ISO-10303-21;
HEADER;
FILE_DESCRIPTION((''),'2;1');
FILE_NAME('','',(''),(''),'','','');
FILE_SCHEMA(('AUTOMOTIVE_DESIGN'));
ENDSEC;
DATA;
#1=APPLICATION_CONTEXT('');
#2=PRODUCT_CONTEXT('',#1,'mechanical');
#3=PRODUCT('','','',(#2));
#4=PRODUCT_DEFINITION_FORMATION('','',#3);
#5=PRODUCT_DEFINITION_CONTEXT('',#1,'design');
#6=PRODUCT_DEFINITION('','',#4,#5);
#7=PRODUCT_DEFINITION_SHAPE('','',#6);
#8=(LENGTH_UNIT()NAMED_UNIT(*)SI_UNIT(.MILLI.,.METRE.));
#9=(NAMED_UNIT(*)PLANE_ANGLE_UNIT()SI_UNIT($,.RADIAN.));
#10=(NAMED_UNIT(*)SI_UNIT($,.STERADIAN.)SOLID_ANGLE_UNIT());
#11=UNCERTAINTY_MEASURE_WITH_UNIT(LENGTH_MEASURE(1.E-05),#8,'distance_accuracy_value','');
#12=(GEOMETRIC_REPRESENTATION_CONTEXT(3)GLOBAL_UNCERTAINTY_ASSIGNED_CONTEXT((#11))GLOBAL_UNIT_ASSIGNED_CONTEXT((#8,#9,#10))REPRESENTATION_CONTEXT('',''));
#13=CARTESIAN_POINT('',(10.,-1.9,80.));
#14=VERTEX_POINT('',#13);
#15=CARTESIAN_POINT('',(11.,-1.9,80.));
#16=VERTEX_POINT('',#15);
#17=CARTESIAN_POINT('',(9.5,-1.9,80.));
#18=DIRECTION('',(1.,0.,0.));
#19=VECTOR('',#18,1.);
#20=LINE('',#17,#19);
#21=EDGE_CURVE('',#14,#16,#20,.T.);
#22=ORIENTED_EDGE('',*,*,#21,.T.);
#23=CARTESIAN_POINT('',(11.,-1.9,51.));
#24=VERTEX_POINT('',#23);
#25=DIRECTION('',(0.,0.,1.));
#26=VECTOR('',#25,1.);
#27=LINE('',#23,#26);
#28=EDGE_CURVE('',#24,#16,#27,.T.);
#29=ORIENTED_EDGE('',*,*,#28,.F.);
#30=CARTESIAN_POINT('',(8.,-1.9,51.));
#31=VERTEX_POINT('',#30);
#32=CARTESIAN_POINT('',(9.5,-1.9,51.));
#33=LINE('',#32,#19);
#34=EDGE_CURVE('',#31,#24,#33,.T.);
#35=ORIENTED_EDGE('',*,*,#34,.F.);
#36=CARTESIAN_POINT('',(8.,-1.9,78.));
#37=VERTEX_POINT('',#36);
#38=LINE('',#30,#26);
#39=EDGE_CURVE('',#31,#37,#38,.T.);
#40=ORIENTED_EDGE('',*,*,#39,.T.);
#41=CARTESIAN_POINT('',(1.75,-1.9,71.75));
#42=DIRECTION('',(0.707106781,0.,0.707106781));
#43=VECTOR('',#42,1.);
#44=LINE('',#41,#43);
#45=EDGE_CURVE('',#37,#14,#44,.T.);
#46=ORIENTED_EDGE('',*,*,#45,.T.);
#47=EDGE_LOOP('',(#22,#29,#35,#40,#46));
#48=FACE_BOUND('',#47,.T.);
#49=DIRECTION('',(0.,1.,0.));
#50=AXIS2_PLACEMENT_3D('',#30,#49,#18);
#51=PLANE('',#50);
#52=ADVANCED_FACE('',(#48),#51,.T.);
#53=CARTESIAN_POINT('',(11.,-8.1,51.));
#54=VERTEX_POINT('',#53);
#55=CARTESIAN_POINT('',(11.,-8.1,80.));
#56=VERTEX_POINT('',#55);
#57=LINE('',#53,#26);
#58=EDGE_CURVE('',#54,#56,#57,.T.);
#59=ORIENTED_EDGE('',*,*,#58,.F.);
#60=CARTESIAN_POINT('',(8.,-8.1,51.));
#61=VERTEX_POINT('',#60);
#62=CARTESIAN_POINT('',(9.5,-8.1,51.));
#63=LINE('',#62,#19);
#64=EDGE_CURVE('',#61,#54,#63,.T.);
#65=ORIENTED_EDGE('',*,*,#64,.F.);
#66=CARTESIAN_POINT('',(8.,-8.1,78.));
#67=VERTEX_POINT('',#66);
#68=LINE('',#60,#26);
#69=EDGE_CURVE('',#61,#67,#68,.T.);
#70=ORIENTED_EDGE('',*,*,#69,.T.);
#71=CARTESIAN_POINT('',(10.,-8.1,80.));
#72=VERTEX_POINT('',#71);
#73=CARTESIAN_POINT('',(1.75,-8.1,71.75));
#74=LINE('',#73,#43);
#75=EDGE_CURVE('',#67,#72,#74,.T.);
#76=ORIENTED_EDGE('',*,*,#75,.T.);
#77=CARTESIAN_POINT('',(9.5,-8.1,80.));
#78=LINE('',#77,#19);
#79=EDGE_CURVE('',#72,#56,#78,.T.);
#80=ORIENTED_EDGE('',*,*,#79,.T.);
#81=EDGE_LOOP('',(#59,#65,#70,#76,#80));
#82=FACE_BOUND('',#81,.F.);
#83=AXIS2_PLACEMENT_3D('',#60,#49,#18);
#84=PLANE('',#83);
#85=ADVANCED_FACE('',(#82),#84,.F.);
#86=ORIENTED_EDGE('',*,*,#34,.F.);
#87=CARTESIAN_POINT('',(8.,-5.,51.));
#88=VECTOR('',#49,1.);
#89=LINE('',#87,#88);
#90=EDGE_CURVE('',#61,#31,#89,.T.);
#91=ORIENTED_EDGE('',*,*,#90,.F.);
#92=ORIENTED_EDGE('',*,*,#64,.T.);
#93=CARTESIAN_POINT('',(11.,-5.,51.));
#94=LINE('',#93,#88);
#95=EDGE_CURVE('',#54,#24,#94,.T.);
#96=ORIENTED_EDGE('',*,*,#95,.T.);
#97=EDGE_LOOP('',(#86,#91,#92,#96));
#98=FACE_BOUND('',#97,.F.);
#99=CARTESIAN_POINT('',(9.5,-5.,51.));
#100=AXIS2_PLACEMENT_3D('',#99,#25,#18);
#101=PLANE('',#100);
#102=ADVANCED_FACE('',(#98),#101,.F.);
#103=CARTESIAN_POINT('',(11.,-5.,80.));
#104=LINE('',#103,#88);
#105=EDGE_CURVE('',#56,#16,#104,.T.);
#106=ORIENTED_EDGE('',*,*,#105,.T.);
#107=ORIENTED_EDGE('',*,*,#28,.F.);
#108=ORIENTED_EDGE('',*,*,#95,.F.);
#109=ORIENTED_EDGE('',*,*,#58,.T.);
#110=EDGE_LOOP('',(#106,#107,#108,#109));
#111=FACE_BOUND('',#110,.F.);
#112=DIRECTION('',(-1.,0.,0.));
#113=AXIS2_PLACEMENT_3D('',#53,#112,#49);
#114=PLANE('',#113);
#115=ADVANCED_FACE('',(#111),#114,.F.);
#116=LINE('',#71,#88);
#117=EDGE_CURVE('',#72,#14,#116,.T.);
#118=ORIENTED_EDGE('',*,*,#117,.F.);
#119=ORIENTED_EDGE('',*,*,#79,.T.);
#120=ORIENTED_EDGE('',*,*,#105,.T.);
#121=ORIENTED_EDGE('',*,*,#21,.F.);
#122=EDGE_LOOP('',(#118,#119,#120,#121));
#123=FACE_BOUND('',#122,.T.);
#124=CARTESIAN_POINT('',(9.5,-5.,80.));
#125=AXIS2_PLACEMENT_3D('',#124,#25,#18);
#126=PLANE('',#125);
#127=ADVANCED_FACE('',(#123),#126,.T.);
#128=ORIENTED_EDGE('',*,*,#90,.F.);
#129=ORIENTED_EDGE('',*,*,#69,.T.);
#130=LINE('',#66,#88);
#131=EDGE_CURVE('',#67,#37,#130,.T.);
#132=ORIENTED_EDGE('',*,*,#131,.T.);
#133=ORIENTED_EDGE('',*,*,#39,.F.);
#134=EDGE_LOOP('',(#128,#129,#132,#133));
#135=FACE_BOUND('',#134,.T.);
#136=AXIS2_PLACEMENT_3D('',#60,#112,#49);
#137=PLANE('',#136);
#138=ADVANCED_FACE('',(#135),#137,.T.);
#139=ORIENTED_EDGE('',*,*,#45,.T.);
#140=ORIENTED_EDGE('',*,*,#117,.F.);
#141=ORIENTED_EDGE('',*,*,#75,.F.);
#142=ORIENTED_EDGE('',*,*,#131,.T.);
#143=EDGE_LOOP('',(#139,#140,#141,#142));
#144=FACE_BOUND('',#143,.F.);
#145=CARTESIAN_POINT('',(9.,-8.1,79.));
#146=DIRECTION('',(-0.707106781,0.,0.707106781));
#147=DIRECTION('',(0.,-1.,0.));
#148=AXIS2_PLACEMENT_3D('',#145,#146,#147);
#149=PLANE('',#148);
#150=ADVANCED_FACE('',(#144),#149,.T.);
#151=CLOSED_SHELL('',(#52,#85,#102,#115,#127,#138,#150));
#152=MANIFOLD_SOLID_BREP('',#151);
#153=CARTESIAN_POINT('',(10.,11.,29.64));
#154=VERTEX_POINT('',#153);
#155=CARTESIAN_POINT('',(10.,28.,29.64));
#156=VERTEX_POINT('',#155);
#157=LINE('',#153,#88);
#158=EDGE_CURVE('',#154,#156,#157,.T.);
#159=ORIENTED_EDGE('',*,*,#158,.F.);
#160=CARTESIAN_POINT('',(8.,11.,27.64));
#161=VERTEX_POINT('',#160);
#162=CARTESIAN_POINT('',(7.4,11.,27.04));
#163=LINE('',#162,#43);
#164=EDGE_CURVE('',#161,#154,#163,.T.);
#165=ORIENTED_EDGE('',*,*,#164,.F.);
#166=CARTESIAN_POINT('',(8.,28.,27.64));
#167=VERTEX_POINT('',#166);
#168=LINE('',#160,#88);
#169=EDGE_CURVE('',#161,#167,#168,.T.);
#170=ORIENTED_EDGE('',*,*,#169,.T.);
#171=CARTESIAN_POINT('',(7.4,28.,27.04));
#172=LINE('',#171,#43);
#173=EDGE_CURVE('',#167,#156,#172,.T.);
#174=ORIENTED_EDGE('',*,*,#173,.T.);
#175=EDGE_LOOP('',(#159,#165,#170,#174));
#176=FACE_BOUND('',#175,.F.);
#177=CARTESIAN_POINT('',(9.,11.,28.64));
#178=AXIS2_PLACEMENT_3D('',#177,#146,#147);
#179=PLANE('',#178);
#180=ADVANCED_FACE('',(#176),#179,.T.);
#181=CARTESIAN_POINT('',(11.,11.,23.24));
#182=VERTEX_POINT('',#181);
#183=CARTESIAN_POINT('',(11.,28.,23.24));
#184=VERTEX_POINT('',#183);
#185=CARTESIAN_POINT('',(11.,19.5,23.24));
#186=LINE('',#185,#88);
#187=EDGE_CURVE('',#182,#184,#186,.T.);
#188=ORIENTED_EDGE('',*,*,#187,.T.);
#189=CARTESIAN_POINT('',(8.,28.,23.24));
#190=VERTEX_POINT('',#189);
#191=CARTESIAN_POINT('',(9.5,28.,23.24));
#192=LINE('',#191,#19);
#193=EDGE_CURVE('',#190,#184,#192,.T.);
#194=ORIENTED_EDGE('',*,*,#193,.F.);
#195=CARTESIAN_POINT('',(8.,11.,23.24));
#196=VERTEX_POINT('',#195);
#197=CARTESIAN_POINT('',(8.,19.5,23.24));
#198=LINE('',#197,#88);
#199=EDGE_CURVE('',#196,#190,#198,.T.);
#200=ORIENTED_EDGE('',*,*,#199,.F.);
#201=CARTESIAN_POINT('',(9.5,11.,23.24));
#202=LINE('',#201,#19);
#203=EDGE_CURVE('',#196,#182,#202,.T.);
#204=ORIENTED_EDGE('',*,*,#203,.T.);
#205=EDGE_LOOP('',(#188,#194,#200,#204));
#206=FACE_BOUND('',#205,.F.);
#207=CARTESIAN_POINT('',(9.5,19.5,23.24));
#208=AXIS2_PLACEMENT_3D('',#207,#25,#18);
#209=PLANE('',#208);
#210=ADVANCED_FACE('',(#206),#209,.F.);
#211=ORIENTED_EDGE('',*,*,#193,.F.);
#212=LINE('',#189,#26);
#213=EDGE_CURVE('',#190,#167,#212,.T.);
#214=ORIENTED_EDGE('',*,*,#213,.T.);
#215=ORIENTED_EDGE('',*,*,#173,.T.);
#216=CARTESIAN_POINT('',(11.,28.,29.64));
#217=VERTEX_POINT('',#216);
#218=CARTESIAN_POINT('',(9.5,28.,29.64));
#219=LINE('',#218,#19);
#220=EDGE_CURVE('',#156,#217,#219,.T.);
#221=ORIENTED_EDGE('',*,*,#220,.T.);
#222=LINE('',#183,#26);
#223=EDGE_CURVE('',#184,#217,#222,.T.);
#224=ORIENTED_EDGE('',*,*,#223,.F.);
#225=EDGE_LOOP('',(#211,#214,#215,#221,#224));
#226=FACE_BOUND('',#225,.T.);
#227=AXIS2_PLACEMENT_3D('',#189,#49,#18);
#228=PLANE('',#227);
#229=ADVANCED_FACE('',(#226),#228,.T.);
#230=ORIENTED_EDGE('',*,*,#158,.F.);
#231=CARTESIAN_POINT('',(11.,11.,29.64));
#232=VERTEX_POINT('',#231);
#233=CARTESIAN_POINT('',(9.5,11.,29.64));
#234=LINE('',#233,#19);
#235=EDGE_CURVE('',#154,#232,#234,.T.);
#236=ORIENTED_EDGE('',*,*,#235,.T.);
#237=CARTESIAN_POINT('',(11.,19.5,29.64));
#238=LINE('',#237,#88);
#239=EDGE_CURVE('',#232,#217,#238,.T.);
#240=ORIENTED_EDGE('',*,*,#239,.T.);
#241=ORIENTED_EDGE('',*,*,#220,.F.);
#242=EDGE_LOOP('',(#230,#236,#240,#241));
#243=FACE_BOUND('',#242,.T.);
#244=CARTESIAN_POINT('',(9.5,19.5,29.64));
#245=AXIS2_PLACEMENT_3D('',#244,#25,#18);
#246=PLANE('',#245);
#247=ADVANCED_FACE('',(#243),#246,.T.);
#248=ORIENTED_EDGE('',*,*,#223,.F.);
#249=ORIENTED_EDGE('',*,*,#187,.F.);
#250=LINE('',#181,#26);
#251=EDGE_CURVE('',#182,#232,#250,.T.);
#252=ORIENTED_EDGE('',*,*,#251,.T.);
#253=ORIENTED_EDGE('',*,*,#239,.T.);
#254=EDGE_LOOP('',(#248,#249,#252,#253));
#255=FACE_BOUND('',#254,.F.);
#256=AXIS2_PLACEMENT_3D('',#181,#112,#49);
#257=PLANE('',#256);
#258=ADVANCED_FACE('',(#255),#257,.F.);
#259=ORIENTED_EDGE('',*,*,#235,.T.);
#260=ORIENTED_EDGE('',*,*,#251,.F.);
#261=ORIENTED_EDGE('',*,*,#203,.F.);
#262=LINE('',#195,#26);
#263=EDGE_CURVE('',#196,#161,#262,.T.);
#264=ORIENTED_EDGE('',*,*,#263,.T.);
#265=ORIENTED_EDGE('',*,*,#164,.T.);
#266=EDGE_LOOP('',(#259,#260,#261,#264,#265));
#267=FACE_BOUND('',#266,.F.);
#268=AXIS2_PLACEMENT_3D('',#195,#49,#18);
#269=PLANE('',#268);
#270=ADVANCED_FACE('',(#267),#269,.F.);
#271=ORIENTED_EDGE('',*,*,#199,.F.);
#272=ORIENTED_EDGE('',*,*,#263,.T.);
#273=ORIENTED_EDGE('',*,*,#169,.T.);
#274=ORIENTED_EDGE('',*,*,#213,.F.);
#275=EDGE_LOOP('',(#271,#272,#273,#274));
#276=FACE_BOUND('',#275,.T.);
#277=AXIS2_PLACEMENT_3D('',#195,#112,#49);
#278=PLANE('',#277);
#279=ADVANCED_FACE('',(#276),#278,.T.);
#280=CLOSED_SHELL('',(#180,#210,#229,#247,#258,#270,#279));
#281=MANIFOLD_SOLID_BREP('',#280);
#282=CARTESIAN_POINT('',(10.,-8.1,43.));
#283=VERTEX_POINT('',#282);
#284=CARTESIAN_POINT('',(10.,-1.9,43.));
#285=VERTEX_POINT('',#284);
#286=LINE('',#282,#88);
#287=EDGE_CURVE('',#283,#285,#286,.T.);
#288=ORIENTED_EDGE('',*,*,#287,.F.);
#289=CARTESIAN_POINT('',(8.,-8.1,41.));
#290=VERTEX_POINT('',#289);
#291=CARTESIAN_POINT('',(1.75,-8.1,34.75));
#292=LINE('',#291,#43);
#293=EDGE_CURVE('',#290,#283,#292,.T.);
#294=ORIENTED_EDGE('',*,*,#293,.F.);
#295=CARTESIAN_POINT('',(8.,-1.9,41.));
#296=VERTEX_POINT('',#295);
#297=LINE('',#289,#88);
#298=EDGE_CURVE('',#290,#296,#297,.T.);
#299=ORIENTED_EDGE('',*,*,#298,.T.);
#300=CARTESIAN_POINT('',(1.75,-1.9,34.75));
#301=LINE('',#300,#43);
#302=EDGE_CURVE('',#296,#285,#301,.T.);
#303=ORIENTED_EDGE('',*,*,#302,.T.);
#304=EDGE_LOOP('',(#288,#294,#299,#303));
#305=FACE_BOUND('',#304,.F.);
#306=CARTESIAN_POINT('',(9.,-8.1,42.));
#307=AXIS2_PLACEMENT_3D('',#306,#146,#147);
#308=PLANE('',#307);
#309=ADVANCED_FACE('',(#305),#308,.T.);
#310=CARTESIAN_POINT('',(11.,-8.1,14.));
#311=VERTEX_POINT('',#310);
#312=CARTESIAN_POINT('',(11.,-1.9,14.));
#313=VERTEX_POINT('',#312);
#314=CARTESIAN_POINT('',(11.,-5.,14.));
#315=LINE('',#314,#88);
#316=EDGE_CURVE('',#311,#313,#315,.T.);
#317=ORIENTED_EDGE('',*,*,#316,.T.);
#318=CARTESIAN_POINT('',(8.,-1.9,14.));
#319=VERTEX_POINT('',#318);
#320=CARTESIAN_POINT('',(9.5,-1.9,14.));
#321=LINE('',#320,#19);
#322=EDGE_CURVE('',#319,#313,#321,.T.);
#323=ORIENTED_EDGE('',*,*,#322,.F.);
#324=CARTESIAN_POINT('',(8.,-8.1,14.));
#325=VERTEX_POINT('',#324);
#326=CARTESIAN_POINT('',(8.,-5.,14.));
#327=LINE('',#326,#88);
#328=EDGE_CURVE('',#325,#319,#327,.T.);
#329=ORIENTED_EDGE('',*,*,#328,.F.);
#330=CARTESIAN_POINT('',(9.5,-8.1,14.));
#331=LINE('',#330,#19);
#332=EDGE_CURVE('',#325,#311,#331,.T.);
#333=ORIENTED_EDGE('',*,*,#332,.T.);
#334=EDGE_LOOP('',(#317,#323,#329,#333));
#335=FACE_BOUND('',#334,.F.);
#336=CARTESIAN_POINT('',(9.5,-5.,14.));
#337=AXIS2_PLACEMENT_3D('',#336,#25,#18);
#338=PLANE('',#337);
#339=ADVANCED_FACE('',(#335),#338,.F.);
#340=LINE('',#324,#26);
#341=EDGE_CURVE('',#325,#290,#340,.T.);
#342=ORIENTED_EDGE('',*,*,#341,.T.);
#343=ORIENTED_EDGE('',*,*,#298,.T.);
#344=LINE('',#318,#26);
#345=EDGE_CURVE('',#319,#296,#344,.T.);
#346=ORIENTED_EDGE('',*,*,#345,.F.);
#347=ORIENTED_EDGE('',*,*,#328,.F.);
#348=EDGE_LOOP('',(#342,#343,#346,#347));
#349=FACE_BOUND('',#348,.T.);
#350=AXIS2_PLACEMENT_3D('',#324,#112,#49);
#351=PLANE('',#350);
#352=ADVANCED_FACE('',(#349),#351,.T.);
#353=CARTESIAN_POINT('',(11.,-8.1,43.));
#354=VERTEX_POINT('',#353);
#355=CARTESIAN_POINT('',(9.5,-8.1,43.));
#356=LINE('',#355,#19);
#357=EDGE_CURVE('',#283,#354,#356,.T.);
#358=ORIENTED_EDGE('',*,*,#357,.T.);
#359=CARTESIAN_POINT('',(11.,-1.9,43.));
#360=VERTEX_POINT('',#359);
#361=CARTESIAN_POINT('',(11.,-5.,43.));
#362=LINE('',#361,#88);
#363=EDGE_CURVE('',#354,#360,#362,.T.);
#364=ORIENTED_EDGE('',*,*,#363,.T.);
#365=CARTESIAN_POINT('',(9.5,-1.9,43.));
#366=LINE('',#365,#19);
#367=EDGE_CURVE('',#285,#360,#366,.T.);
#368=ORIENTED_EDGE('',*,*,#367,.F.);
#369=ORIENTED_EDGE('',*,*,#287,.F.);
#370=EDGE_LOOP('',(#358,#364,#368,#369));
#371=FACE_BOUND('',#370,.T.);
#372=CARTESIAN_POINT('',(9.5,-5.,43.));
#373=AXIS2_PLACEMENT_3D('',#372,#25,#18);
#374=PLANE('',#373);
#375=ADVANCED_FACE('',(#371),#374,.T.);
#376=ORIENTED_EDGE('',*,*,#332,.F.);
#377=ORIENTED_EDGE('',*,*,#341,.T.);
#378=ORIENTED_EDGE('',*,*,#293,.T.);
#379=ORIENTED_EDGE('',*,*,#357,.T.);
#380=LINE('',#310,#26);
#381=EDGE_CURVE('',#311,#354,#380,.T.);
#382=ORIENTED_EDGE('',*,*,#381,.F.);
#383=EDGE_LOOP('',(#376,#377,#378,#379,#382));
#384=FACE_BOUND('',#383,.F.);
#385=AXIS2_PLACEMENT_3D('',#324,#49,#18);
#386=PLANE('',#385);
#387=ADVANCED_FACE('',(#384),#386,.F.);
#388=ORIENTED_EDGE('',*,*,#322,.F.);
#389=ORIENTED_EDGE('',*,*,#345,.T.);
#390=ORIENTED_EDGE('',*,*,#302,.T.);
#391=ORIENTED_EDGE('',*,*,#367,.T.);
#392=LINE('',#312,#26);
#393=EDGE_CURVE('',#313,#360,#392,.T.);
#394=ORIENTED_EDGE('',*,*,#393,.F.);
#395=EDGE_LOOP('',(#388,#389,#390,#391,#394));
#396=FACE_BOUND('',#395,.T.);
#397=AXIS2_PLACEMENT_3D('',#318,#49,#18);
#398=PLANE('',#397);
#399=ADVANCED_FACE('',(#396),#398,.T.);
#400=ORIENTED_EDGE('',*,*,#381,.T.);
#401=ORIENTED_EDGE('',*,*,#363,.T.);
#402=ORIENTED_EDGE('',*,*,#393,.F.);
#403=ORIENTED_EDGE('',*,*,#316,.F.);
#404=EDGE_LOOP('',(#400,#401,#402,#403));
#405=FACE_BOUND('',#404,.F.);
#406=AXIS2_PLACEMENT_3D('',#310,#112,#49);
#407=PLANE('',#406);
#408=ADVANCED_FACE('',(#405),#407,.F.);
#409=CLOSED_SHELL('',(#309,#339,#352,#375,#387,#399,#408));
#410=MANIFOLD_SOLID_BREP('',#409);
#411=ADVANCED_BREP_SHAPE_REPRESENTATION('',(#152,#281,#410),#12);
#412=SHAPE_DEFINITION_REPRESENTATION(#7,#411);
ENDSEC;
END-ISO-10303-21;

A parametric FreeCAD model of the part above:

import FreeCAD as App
import Part
import Sketcher


def edges_at(feature, points):
    """Names of the edges that pass closest to the given points."""
    edges = feature.Shape.Edges
    near = lambda p: min(range(len(edges)), key=lambda i: edges[i].distToShape(Part.Vertex(*p))[0])
    return sorted({f"Edge{near(p) + 1}" for p in points})


def add_polygon(sketch, points):
    """Adds a closed chain of lines whose ends are joined by coincident constraints."""
    first, n = sketch.GeometryCount, len(points)
    for a, b in zip(points, points[1:] + points[:1]):
        sketch.addGeometry(Part.LineSegment(App.Vector(*a, 0), App.Vector(*b, 0)), False)
    for i in range(n):
        sketch.addConstraint(Sketcher.Constraint("Coincident", first + i, 2, first + (i + 1) % n, 1))

doc = App.newDocument("Part")
body = doc.addObject("PartDesign::Body", "Body")

sketch1 = doc.addObject("Sketcher::SketchObject", "Sketch")
body.addObject(sketch1)
sketch1.AttachmentSupport = (doc.XY_Plane, [""])
sketch1.MapMode = "FlatFace"
sketch1.AttachmentOffset = App.Placement(App.Vector(0, 0, 14), App.Rotation())
add_polygon(sketch1, [(8, -1.9), (8, -8.1), (11, -8.1), (11, -1.9)])
sketch1.addConstraint([
    Sketcher.Constraint("Vertical", 0),
    Sketcher.Constraint("Horizontal", 1),
    Sketcher.Constraint("Vertical", 2),
    Sketcher.Constraint("Horizontal", 3),
    Sketcher.Constraint("DistanceX", 1, 1, 1, 2, 3.0),
    Sketcher.Constraint("DistanceY", 0, 2, 0, 1, 6.2),
    Sketcher.Constraint("DistanceX", -1, 1, 0, 2, 8.0),
    Sketcher.Constraint("DistanceY", 0, 2, -1, 1, 8.1),
])
pad1 = doc.addObject("PartDesign::Pad", "Pad")
body.addObject(pad1)
pad1.Profile = sketch1
pad1.Length = 29
doc.recompute()

chamfer = doc.addObject("PartDesign::Chamfer", "Chamfer")
body.addObject(chamfer)
chamfer.Base = (pad1, edges_at(pad1, [(8, -5, 43)]))
chamfer.Size = 2
body2 = doc.addObject("PartDesign::Body", "Body001")

sketch2 = doc.addObject("Sketcher::SketchObject", "Sketch001")
body2.addObject(sketch2)
sketch2.AttachmentSupport = (doc.getObject("XY_Plane001"), [""])
sketch2.MapMode = "FlatFace"
sketch2.AttachmentOffset = App.Placement(App.Vector(0, 0, 51), App.Rotation())
add_polygon(sketch2, [(8, -1.9), (8, -8.1), (11, -8.1), (11, -1.9)])
sketch2.addConstraint([
    Sketcher.Constraint("Vertical", 0),
    Sketcher.Constraint("Horizontal", 1),
    Sketcher.Constraint("Vertical", 2),
    Sketcher.Constraint("Horizontal", 3),
    Sketcher.Constraint("DistanceX", 1, 1, 1, 2, 3.0),
    Sketcher.Constraint("DistanceY", 0, 2, 0, 1, 6.2),
    Sketcher.Constraint("DistanceX", -1, 1, 0, 2, 8.0),
    Sketcher.Constraint("DistanceY", 0, 2, -1, 1, 8.1),
])
pad2 = doc.addObject("PartDesign::Pad", "Pad001")
body2.addObject(pad2)
pad2.Profile = sketch2
pad2.Length = 29
doc.recompute()

chamfer2 = doc.addObject("PartDesign::Chamfer", "Chamfer001")
body2.addObject(chamfer2)
chamfer2.Base = (pad2, edges_at(pad2, [(8, -5, 80)]))
chamfer2.Size = 2
body3 = doc.addObject("PartDesign::Body", "Body002")
body3.AllowCompound = True

sketch3 = doc.addObject("Sketcher::SketchObject", "Sketch002")
body3.addObject(sketch3)
sketch3.AttachmentSupport = (doc.getObject("XY_Plane002"), [""])
sketch3.MapMode = "FlatFace"
sketch3.AttachmentOffset = App.Placement(App.Vector(0, 0, 23.24), App.Rotation())
add_polygon(sketch3, [(8, 28), (8, 11), (11, 11), (11, 28)])
sketch3.addConstraint([
    Sketcher.Constraint("Vertical", 0),
    Sketcher.Constraint("Horizontal", 1),
    Sketcher.Constraint("Vertical", 2),
    Sketcher.Constraint("Horizontal", 3),
    Sketcher.Constraint("DistanceX", 1, 1, 1, 2, 3.0),
    Sketcher.Constraint("DistanceY", 0, 2, 0, 1, 17.0),
    Sketcher.Constraint("DistanceX", -1, 1, 0, 2, 8.0),
    Sketcher.Constraint("DistanceY", -1, 1, 0, 2, 11.0),
])
pad3 = doc.addObject("PartDesign::Pad", "Pad002")
body3.addObject(pad3)
pad3.Profile = sketch3
pad3.Length = 6.4
doc.recompute()

chamfer3 = doc.addObject("PartDesign::Chamfer", "Chamfer002")
body3.addObject(chamfer3)
chamfer3.Base = (pad3, edges_at(pad3, [(8, 19.5, 29.64)]))
chamfer3.Size = 2
doc.recompute()

boolean = doc.addObject("PartDesign::Boolean", "Boolean")
body3.addObject(boolean)
boolean.Type = "Fuse"
boolean.addObjects([body])
doc.recompute()

boolean2 = doc.addObject("PartDesign::Boolean", "Boolean001")
body3.addObject(boolean2)
boolean2.Type = "Fuse"
boolean2.addObjects([body2])

doc.recompute()
